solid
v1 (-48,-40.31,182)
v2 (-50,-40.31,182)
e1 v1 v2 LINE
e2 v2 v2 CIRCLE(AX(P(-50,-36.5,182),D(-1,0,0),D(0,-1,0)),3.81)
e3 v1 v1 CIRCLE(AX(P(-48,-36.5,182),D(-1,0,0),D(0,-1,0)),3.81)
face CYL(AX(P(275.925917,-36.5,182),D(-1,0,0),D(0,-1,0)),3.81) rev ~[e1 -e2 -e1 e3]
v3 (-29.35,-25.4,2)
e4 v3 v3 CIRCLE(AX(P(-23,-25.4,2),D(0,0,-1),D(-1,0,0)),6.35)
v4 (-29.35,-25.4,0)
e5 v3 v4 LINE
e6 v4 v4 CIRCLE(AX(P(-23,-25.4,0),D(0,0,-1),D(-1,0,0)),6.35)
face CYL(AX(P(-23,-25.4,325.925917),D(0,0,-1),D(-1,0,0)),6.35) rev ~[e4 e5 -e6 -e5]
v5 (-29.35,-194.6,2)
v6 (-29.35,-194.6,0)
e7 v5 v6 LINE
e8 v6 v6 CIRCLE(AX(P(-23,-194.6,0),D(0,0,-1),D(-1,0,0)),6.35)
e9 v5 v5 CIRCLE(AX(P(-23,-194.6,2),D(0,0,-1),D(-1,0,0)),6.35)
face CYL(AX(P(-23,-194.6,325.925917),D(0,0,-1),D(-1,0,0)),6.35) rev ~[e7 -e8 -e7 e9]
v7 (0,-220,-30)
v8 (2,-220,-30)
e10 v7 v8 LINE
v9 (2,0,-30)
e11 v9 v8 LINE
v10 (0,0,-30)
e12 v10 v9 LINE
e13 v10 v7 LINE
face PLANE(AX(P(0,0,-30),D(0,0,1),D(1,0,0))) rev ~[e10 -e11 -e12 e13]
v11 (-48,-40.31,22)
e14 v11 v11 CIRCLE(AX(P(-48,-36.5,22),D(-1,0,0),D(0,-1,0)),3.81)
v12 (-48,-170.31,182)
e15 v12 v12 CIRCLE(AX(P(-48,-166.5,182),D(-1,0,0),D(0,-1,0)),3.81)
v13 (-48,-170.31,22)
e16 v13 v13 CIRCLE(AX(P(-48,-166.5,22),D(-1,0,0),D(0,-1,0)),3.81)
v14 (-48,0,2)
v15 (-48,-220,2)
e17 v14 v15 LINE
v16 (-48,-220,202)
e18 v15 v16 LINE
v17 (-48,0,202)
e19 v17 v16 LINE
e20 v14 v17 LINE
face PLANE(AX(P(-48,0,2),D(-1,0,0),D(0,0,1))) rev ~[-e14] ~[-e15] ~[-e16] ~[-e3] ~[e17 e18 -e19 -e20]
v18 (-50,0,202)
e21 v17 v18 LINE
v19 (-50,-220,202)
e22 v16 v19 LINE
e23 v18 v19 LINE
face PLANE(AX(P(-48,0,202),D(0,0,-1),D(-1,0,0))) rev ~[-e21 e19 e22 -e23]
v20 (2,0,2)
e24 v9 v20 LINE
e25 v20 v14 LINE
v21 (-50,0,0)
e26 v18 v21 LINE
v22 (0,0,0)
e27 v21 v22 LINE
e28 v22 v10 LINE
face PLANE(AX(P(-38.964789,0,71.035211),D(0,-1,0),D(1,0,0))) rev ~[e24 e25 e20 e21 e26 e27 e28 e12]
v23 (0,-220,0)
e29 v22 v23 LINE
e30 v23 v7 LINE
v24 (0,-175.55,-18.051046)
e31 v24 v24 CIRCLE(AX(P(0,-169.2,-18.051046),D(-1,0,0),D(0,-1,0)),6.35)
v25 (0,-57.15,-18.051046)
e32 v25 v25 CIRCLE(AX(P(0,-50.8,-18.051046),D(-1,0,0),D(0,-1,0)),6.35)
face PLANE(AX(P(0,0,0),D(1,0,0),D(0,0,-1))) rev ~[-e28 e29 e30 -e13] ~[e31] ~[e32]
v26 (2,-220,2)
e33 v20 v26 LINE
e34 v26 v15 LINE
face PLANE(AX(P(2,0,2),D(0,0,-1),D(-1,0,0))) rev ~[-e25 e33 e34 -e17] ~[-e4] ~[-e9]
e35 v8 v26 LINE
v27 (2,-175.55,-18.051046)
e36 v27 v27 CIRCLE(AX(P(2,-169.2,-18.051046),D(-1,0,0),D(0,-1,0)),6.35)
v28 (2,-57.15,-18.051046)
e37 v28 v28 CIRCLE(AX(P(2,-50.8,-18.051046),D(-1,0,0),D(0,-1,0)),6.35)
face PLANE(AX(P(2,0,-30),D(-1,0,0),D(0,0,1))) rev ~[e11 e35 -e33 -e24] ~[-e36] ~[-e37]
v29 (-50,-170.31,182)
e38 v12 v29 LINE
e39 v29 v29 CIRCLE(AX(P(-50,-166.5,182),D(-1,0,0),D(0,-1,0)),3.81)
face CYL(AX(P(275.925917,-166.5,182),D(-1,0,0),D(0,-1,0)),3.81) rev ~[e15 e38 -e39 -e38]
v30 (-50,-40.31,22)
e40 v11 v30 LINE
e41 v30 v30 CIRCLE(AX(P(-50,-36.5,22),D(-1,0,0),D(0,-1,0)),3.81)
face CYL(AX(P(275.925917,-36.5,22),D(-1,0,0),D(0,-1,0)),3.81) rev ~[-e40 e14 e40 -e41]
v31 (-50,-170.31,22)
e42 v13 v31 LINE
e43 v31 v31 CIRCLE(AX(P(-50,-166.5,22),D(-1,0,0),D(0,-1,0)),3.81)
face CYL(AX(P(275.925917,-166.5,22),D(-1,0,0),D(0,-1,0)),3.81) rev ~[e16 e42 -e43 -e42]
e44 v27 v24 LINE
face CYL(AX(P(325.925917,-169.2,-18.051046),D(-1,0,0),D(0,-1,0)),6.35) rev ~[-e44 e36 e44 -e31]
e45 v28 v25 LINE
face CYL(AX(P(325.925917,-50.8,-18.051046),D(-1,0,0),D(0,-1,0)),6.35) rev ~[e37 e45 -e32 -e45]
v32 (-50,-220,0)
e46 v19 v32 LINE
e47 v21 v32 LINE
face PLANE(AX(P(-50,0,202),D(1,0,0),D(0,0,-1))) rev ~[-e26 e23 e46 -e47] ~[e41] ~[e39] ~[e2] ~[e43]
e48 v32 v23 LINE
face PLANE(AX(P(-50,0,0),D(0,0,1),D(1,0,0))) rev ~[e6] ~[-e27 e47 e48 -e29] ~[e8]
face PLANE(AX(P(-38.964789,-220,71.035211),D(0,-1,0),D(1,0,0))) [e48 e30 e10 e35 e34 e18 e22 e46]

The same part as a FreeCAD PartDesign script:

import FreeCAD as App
import Part
import Sketcher


def add_polygon(sketch, points):
    """Adds a closed chain of lines whose ends are joined by coincident constraints."""
    first, n = sketch.GeometryCount, len(points)
    for a, b in zip(points, points[1:] + points[:1]):
        sketch.addGeometry(Part.LineSegment(App.Vector(*a, 0), App.Vector(*b, 0)), False)
    for i in range(n):
        sketch.addConstraint(Sketcher.Constraint("Coincident", first + i, 2, first + (i + 1) % n, 1))

doc = App.newDocument("Part")
params = doc.addObject("Spreadsheet::Sheet", "Params")
for row, (alias, value) in enumerate([
    ("sketch1_width", "2 mm"),
    ("sketch1_width2", "50 mm"),
    ("sketch1_height", "30 mm"),
    ("sketch1_height2", "32 mm"),
    ("sketch1_height3", "200 mm"),
    ("pad1_length", "220 mm"),
    ("sketch2_diameter", "12.7 mm"),
    ("hole_diameter", "12.7 mm"),
    ("sketch3_diameter", "7.62 mm"),
    ("hole2_diameter", "7.62 mm"),
    ("sketch4_diameter", "12.7 mm"),
    ("hole3_diameter", "12.7 mm"),
], start=1):
    params.set(f"A{row}", alias)
    params.set(f"B{row}", "=" + value)
    params.setAlias(f"B{row}", alias)

body = doc.addObject("PartDesign::Body", "Body")

# Sketch on XZ plane
sketch1 = doc.addObject("Sketcher::SketchObject", "Sketch")
body.addObject(sketch1)
sketch1.AttachmentSupport = (doc.XZ_Plane, [""])
sketch1.MapMode = "FlatFace"
add_polygon(sketch1, [(0, 0), (0, -30), (2, -30), (2, 2), (-48, 2), (-48, 202), (-50, 202), (-50, 0)])  # lines 0-7
sketch1.addConstraint([
    Sketcher.Constraint("Vertical", 0),
    Sketcher.Constraint("Horizontal", 1),
    Sketcher.Constraint("Vertical", 2),
    Sketcher.Constraint("Horizontal", 3),
    Sketcher.Constraint("Vertical", 4),
    Sketcher.Constraint("Horizontal", 5),
    Sketcher.Constraint("Vertical", 6),
    Sketcher.Constraint("Horizontal", 7),
    Sketcher.Constraint("Coincident", 7, 2, -1, 1),
    Sketcher.Constraint("Equal", 1, 5),
    Sketcher.Constraint("DistanceX", 1, 1, 1, 2, 2.0),
    Sketcher.Constraint("DistanceX", 3, 2, 3, 1, 50.0),
    Sketcher.Constraint("DistanceY", 0, 2, 0, 1, 30.0),
    Sketcher.Constraint("DistanceY", 2, 1, 2, 2, 32.0),
    Sketcher.Constraint("DistanceY", 4, 1, 4, 2, 200.0),
])
sketch1.setExpression("Constraints[18]", "Params.sketch1_width")
sketch1.setExpression("Constraints[19]", "Params.sketch1_width2")
sketch1.setExpression("Constraints[20]", "Params.sketch1_height")
sketch1.setExpression("Constraints[21]", "Params.sketch1_height2")
sketch1.setExpression("Constraints[22]", "Params.sketch1_height3")
pad1 = doc.addObject("PartDesign::Pad", "Pad")
body.addObject(pad1)
pad1.Profile = sketch1
pad1.setExpression("Length", "Params.pad1_length")

# Sketch on YZ plane
sketch2 = doc.addObject("Sketcher::SketchObject", "Sketch001")
body.addObject(sketch2)
sketch2.AttachmentSupport = (doc.YZ_Plane, [""])
sketch2.MapMode = "FlatFace"
sketch2.AttachmentOffset = App.Placement(App.Vector(0, 0, 2), App.Rotation())
sketch2.addGeometry([
    Part.Circle(App.Vector(-169, -18, 0), App.Vector(0, 0, 1), 6),
    Part.Circle(App.Vector(-51, -18, 0), App.Vector(0, 0, 1), 6),
], False)
sketch2.addConstraint([
    Sketcher.Constraint("Equal", 0, 1),
    Sketcher.Constraint("Horizontal", 0, 3, 1, 3),
    Sketcher.Constraint("Diameter", 0, 12.7),
    Sketcher.Constraint("DistanceX", 0, 3, -1, 1, 169.2),
    Sketcher.Constraint("DistanceX", 1, 3, -1, 1, 50.8),
    Sketcher.Constraint("DistanceY", 0, 3, -1, 1, 18.051046),
])
sketch2.setExpression("Constraints[2]", "Params.sketch2_diameter")
doc.recompute()
hole = doc.addObject("PartDesign::Hole", "Hole")
body.addObject(hole)
hole.Profile = sketch2
hole.ThreadType = "None"
hole.setExpression("Diameter", "Params.hole_diameter")
hole.DepthType = "ThroughAll"

# Sketch on YZ plane
sketch3 = doc.addObject("Sketcher::SketchObject", "Sketch002")
body.addObject(sketch3)
sketch3.AttachmentSupport = (doc.YZ_Plane, [""])
sketch3.MapMode = "FlatFace"
sketch3.AttachmentOffset = App.Placement(App.Vector(0, 0, -48), App.Rotation())
sketch3.addGeometry([
    Part.Circle(App.Vector(-166.5, 182, 0), App.Vector(0, 0, 1), 3.8),
    Part.Circle(App.Vector(-36.5, 182, 0), App.Vector(0, 0, 1), 3.8),
    Part.Circle(App.Vector(-36.5, 22, 0), App.Vector(0, 0, 1), 3.8),
    Part.Circle(App.Vector(-166.5, 22, 0), App.Vector(0, 0, 1), 3.8),
], False)
sketch3.addConstraint([
    Sketcher.Constraint("Equal", 0, 1),
    Sketcher.Constraint("Equal", 1, 2),
    Sketcher.Constraint("Equal", 2, 3),
    Sketcher.Constraint("Horizontal", 0, 3, 1, 3),
    Sketcher.Constraint("Horizontal", 2, 3, 3, 3),
    Sketcher.Constraint("Vertical", 1, 3, 2, 3),
    Sketcher.Constraint("Vertical", 0, 3, 3, 3),
    Sketcher.Constraint("Diameter", 0, 7.62),
    Sketcher.Constraint("DistanceY", -1, 1, 0, 3, 182.0),
    Sketcher.Constraint("DistanceY", -1, 1, 2, 3, 22.0),
    Sketcher.Constraint("DistanceX", 0, 3, 1, 3, 130.0),
    Sketcher.Constraint("DistanceX", 0, 3, -1, 1, 166.5),
])
sketch3.setExpression("Constraints[7]", "Params.sketch3_diameter")
doc.recompute()
hole2 = doc.addObject("PartDesign::Hole", "Hole001")
body.addObject(hole2)
hole2.Profile = sketch3
hole2.ThreadType = "None"
hole2.setExpression("Diameter", "Params.hole2_diameter")
hole2.DepthType = "ThroughAll"

# Sketch on XY plane
sketch4 = doc.addObject("Sketcher::SketchObject", "Sketch003")
body.addObject(sketch4)
sketch4.AttachmentSupport = (doc.XY_Plane, [""])
sketch4.MapMode = "FlatFace"
sketch4.AttachmentOffset = App.Placement(App.Vector(0, 0, 2), App.Rotation())
sketch4.addGeometry([
    Part.Circle(App.Vector(-23, -25, 0), App.Vector(0, 0, 1), 6),
    Part.Circle(App.Vector(-23, -195, 0), App.Vector(0, 0, 1), 6),
], False)
sketch4.addConstraint([
    Sketcher.Constraint("Equal", 0, 1),
    Sketcher.Constraint("Vertical", 0, 3, 1, 3),
    Sketcher.Constraint("Diameter", 0, 12.7),
    Sketcher.Constraint("DistanceX", 0, 3, -1, 1, 23.0),
    Sketcher.Constraint("DistanceY", 0, 3, -1, 1, 25.4),
    Sketcher.Constraint("DistanceY", 1, 3, -1, 1, 194.6),
])
sketch4.setExpression("Constraints[2]", "Params.sketch4_diameter")
doc.recompute()
hole3 = doc.addObject("PartDesign::Hole", "Hole002")
body.addObject(hole3)
hole3.Profile = sketch4
hole3.ThreadType = "None"
hole3.setExpression("Diameter", "Params.hole3_diameter")
hole3.DepthType = "ThroughAll"

doc.recompute()
